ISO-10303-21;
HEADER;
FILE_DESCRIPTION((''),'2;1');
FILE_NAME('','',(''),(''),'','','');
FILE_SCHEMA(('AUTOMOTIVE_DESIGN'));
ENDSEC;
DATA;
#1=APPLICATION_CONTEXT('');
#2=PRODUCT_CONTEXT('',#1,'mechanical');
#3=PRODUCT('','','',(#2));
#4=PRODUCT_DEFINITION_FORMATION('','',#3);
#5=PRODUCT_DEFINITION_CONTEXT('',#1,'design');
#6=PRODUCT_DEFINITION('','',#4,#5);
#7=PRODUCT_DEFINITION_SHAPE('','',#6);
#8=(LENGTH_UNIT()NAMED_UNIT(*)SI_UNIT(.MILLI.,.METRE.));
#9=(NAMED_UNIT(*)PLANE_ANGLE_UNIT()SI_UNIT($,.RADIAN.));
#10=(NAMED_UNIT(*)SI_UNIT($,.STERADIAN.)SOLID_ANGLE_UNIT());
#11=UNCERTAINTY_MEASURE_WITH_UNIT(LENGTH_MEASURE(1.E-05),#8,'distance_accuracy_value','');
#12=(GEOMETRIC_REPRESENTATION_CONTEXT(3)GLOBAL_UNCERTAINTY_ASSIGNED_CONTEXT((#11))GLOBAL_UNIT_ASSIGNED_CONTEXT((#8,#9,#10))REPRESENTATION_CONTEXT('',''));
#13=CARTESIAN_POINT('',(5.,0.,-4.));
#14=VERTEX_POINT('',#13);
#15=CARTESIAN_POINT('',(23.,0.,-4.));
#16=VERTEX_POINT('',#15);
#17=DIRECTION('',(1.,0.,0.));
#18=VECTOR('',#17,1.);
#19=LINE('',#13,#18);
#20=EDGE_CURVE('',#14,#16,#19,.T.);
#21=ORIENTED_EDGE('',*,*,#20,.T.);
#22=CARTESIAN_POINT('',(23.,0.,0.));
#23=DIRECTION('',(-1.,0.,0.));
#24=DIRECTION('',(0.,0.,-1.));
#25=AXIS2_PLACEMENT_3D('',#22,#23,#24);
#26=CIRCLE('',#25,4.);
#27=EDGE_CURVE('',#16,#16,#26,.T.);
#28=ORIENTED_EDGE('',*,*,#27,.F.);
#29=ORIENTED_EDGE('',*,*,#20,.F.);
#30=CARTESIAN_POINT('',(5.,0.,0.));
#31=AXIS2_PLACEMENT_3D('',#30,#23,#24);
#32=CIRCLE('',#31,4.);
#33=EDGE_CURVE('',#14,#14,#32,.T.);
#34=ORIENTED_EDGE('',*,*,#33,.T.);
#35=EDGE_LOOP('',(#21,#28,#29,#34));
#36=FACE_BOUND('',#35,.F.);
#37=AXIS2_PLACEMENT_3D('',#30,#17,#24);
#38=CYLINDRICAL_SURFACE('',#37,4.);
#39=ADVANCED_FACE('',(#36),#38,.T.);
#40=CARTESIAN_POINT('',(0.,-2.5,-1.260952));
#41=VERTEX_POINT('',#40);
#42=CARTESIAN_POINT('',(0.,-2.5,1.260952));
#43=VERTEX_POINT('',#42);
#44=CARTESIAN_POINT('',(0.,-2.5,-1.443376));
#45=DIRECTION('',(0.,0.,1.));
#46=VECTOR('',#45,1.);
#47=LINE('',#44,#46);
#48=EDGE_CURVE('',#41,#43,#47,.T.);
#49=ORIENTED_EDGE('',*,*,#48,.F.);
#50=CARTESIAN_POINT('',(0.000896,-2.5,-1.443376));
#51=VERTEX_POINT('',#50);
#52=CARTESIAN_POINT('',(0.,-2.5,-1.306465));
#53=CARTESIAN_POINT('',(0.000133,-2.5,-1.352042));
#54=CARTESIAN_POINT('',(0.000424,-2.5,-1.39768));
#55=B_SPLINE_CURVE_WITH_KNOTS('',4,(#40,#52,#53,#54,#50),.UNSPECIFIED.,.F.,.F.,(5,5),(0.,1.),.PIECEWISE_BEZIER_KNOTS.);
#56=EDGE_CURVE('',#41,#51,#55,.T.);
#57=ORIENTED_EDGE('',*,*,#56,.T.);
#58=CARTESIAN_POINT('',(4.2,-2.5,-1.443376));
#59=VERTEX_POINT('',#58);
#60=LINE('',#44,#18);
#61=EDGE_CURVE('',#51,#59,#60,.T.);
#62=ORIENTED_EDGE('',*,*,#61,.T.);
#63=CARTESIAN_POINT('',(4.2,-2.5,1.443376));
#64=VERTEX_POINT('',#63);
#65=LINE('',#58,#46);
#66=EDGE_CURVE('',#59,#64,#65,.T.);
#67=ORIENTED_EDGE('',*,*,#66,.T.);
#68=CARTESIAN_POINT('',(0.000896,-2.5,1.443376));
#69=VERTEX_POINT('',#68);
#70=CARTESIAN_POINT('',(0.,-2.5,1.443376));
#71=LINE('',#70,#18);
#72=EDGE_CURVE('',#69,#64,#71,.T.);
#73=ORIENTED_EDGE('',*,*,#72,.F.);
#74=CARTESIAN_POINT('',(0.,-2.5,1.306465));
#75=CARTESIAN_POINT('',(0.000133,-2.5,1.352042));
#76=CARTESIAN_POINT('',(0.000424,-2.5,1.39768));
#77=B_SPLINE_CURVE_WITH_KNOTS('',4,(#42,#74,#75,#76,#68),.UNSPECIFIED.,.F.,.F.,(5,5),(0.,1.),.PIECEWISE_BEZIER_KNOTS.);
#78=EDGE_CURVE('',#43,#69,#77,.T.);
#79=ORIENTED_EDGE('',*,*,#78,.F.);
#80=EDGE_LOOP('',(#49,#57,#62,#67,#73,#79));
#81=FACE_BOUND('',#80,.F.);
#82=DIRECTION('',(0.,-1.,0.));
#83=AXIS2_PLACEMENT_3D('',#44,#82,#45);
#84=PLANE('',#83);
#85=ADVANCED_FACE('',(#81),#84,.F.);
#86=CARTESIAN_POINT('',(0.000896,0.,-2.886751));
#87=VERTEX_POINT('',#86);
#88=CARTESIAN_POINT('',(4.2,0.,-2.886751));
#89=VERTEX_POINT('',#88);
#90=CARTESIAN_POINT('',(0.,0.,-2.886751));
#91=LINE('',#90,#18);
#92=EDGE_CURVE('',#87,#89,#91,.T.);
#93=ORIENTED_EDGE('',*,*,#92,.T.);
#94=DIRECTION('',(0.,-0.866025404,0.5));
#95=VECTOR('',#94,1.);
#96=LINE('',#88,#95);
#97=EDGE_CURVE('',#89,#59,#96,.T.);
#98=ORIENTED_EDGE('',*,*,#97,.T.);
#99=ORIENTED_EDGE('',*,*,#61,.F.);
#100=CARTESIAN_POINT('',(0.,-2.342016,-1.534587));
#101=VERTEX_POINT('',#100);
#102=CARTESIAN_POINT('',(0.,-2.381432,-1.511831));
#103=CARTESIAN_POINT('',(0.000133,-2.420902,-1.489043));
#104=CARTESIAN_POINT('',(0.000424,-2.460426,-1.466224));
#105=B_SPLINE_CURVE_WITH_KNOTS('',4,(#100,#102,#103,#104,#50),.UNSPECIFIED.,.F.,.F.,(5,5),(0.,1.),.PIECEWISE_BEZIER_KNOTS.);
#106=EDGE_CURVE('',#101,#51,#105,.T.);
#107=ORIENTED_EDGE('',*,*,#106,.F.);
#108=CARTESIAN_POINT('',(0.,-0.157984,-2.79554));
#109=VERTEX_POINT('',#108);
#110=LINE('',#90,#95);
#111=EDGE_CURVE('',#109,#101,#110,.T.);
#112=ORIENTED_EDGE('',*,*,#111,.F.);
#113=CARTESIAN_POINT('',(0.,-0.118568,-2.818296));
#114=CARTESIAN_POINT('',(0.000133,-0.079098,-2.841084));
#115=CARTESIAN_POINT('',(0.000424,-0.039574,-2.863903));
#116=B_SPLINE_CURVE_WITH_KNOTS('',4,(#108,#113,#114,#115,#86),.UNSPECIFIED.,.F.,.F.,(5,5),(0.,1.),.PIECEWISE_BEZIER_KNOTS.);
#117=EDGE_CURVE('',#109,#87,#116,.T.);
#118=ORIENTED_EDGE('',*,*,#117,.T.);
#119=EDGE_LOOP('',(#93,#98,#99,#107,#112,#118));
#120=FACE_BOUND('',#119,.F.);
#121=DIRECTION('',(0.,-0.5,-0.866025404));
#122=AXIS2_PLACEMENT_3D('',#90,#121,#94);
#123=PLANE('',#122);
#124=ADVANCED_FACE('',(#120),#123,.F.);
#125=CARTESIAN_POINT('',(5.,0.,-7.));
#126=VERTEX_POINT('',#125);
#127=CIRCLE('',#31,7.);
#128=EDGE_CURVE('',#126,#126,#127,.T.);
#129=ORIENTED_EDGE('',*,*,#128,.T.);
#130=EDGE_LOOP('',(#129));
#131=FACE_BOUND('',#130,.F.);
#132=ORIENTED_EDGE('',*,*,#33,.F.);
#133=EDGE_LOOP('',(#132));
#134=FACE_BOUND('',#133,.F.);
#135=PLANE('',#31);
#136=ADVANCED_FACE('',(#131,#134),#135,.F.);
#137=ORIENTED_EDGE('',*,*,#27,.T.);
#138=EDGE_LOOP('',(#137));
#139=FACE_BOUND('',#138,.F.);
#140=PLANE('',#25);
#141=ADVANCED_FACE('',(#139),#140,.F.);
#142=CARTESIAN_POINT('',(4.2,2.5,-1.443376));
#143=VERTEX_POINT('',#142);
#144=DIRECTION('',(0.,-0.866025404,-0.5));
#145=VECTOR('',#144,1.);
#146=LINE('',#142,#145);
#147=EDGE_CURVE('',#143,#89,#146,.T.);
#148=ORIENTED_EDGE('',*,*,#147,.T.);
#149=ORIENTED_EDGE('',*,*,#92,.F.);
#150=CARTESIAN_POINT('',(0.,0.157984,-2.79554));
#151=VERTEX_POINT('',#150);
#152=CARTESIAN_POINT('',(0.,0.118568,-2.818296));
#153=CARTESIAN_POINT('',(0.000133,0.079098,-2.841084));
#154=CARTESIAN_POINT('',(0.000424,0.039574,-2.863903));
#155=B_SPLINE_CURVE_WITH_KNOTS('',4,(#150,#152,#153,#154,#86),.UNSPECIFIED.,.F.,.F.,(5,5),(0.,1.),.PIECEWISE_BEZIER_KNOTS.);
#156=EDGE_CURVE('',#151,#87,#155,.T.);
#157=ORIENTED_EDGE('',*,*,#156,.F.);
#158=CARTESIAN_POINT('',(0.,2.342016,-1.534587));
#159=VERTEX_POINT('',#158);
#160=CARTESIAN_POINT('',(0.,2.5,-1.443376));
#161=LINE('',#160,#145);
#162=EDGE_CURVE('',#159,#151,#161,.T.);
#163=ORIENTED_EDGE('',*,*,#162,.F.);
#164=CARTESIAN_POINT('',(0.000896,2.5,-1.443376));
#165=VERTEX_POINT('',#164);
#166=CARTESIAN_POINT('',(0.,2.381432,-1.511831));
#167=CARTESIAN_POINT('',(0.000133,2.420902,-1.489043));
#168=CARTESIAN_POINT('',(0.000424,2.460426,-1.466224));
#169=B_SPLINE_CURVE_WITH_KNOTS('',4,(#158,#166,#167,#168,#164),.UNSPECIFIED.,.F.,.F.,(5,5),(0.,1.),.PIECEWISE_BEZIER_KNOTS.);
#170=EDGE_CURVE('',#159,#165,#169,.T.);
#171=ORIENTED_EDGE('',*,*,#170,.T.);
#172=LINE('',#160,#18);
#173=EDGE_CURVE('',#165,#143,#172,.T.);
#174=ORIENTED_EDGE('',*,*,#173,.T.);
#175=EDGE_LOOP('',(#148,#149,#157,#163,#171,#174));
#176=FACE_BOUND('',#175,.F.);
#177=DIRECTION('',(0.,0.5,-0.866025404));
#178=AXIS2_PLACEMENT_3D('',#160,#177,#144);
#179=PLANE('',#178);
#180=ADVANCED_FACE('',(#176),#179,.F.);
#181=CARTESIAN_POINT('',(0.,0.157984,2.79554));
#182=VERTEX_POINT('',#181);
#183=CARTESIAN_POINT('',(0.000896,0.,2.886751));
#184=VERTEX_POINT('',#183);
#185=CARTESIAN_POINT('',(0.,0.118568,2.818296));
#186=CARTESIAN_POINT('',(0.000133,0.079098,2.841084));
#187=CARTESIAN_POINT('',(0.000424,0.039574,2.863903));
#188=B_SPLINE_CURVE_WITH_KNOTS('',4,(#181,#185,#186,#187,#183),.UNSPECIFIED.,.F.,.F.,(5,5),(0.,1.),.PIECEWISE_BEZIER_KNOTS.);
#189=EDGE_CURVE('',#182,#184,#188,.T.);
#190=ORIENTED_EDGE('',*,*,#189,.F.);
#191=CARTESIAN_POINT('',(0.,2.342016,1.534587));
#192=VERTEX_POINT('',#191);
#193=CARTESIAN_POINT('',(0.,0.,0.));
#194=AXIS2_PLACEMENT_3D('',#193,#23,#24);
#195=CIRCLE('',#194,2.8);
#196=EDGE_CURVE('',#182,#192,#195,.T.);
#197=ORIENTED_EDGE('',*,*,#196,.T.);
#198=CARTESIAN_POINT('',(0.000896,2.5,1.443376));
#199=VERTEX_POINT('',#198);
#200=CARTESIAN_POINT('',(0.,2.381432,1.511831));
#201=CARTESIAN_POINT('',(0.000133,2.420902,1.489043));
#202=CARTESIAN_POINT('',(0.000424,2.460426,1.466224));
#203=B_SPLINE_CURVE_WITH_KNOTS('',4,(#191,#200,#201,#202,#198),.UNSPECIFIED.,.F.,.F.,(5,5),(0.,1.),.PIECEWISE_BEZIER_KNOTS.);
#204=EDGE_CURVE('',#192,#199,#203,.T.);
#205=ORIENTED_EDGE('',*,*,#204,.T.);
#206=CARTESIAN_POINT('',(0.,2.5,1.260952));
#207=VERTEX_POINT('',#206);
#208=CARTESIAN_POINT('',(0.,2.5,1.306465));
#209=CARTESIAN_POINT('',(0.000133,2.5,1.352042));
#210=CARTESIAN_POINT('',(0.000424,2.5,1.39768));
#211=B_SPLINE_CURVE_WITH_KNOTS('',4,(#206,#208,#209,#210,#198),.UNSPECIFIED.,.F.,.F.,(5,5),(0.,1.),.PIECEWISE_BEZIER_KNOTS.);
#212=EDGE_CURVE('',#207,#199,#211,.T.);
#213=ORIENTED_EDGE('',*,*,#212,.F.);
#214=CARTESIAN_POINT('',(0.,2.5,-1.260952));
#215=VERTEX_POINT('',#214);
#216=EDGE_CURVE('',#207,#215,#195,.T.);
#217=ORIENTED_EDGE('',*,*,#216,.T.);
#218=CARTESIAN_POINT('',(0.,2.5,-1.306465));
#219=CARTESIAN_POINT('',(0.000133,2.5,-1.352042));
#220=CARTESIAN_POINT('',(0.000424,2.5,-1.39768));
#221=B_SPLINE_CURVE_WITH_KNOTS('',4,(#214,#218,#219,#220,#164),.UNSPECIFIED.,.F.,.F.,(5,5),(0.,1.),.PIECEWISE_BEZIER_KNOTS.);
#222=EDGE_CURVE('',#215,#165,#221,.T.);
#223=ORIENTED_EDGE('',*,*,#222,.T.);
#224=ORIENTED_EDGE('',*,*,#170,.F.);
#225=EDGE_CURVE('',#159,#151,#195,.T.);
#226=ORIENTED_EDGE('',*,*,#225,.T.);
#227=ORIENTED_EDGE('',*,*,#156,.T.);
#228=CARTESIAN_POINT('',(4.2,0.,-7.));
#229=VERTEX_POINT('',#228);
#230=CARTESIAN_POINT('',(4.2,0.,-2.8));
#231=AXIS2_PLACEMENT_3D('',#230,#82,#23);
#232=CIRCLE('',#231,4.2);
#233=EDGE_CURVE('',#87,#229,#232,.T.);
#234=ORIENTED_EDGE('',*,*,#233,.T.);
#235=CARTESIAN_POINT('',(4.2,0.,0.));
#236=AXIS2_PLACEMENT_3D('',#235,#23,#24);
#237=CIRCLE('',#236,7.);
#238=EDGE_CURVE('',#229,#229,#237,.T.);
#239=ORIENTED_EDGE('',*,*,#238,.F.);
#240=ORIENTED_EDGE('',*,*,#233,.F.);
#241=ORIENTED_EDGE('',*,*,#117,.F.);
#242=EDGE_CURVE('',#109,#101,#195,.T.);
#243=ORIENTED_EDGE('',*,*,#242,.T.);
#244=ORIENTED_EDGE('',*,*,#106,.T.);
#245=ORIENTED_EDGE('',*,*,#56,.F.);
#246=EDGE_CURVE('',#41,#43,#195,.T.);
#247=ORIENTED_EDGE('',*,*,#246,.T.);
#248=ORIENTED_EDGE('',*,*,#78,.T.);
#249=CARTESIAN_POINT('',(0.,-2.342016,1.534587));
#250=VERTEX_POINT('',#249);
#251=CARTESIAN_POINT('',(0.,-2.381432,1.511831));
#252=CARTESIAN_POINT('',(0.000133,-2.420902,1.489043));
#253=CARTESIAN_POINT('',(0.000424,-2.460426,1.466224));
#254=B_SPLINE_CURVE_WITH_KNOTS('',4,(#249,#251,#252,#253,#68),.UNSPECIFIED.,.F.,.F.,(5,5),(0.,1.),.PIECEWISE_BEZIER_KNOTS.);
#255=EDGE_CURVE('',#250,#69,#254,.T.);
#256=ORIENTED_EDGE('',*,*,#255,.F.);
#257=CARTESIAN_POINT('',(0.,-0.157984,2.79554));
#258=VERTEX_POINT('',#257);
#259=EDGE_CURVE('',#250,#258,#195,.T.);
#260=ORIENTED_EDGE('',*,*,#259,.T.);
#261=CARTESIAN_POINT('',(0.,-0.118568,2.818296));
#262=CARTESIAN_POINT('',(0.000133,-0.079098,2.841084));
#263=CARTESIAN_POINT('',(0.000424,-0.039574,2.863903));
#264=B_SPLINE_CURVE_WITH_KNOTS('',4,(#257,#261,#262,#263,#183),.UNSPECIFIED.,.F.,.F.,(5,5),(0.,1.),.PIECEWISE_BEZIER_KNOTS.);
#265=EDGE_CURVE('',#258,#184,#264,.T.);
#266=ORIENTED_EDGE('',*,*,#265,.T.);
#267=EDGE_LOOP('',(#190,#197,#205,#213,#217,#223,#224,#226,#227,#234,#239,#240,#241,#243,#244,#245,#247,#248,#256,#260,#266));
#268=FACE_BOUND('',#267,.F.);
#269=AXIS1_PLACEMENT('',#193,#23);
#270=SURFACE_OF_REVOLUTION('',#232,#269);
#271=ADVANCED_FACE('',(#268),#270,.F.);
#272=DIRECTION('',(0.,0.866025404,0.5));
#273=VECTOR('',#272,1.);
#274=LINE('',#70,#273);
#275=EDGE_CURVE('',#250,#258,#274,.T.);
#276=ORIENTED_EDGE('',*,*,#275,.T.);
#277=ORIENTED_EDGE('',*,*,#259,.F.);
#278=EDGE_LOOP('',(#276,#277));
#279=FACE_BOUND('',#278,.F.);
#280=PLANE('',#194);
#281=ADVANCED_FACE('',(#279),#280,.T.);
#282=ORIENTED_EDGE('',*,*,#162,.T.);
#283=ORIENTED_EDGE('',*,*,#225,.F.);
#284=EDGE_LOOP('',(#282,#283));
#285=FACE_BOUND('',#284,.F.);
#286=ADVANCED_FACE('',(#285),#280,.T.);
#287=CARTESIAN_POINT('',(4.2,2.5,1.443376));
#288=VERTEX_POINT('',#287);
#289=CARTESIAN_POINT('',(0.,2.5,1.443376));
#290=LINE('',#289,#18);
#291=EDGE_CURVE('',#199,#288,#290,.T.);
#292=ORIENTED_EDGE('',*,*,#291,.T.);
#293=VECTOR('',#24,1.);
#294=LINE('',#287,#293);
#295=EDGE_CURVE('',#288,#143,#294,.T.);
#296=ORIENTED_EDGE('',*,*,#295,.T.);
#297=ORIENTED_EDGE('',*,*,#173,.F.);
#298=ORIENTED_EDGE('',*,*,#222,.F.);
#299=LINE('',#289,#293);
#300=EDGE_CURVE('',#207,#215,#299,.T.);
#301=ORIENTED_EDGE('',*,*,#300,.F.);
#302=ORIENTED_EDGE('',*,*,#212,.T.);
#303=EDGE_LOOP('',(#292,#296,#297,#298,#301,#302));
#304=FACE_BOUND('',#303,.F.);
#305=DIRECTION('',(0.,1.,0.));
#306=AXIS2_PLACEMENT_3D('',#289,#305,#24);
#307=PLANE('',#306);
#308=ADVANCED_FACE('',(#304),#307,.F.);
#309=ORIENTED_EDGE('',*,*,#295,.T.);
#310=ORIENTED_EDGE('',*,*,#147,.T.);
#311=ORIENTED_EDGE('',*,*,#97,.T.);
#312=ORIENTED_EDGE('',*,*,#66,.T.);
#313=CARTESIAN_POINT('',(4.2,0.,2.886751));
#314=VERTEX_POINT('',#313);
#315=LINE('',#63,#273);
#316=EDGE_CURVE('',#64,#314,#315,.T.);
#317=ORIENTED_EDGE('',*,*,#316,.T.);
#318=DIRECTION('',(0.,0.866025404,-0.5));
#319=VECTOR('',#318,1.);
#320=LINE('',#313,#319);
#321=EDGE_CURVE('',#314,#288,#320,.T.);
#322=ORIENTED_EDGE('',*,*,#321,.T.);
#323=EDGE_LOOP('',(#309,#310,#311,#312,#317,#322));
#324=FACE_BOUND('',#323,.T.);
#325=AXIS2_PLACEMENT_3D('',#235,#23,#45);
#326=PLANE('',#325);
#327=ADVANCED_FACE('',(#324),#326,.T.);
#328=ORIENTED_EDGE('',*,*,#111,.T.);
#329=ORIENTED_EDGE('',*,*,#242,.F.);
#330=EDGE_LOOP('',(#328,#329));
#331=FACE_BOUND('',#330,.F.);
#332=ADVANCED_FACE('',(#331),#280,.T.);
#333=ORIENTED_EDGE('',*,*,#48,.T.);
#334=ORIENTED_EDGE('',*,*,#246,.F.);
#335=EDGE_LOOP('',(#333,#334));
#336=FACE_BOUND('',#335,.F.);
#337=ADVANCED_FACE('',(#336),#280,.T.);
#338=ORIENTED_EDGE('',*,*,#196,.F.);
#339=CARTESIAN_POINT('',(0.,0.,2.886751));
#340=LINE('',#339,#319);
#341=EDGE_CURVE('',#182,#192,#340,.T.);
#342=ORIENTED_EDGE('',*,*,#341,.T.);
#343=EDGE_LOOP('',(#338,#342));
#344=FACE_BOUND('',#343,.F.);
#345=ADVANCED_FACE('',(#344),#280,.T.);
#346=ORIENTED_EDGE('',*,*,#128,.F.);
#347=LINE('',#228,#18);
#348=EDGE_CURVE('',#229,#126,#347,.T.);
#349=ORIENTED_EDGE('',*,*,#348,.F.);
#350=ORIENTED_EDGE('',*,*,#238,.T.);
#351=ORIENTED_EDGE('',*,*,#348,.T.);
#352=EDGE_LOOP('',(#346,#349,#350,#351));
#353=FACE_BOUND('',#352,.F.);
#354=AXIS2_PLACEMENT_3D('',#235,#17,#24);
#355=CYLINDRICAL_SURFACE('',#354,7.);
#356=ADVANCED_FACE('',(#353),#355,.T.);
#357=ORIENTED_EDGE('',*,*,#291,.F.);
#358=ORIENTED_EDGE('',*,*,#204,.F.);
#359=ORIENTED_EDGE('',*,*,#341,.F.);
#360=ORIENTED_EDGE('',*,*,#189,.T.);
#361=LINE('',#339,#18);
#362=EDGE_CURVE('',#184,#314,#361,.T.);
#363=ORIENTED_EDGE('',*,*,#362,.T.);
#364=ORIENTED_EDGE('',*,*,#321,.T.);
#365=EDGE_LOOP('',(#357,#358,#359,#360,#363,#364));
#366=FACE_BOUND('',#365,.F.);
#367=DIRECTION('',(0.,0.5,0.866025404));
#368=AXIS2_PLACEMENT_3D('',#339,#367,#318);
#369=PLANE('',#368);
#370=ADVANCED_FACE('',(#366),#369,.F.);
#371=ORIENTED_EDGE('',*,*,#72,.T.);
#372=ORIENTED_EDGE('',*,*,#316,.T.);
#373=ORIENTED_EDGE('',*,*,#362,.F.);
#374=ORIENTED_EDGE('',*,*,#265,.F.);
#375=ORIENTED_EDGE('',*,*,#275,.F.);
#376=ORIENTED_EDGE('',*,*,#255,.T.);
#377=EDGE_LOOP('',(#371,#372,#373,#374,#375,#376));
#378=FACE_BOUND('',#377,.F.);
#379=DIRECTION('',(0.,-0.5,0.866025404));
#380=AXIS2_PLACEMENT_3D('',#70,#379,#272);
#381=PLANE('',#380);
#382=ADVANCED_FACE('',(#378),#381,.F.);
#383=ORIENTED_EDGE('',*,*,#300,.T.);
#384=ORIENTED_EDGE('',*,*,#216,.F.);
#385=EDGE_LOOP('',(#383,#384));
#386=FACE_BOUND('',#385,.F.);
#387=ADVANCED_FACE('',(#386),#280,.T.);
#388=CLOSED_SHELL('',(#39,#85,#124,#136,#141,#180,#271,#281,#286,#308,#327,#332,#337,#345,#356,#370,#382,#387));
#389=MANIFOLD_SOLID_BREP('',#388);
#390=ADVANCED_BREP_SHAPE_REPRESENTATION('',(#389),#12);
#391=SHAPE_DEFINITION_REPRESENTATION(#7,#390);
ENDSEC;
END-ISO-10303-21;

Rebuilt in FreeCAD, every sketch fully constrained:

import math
import FreeCAD as App
import Part
import Sketcher
Q = App.Units.Quantity


def add_polygon(sketch, points):
    """Adds a closed chain of lines whose ends are joined by coincident constraints."""
    first, n = sketch.GeometryCount, len(points)
    for a, b in zip(points, points[1:] + points[:1]):
        sketch.addGeometry(Part.LineSegment(App.Vector(*a, 0), App.Vector(*b, 0)), False)
    for i in range(n):
        sketch.addConstraint(Sketcher.Constraint("Coincident", first + i, 2, first + (i + 1) % n, 1))

doc = App.newDocument("Part")
body = doc.addObject("PartDesign::Body", "Body")

# Sketch on XY plane
sketch1 = doc.addObject("Sketcher::SketchObject", "Sketch")
body.addObject(sketch1)
sketch1.AttachmentSupport = (doc.XY_Plane, [""])
sketch1.MapMode = "FlatFace"
sketch1.addGeometry(Part.LineSegment(App.Vector(0, 2.8, 0), App.Vector(0, 0, 0)), False)
sketch1.addGeometry(Part.LineSegment(App.Vector(0, 0, 0), App.Vector(23, 0, 0)), False)
sketch1.addGeometry(Part.LineSegment(App.Vector(23, 0, 0), App.Vector(23, 4, 0)), False)
sketch1.addGeometry(Part.LineSegment(App.Vector(23, 4, 0), App.Vector(5, 4, 0)), False)
sketch1.addGeometry(Part.LineSegment(App.Vector(5, 4, 0), App.Vector(5, 7, 0)), False)
sketch1.addGeometry(Part.LineSegment(App.Vector(5, 7, 0), App.Vector(4.2, 7, 0)), False)
sketch1.addGeometry(Part.ArcOfCircle(Part.Circle(App.Vector(4.2, 2.8, 0), App.Vector(0, 0, 1), 4.2), math.radians(90), math.radians(180)), False)
sketch1.addConstraint(Sketcher.Constraint("Coincident", 0, 2, 1, 1))
sketch1.addConstraint(Sketcher.Constraint("Coincident", 1, 2, 2, 1))
sketch1.addConstraint(Sketcher.Constraint("Coincident", 2, 2, 3, 1))
sketch1.addConstraint(Sketcher.Constraint("Coincident", 3, 2, 4, 1))
sketch1.addConstraint(Sketcher.Constraint("Coincident", 4, 2, 5, 1))
sketch1.addConstraint(Sketcher.Constraint("Tangent", 5, 2, 6, 1))
sketch1.addConstraint(Sketcher.Constraint("Tangent", 6, 2, 0, 1))
sketch1.addConstraint(Sketcher.Constraint("Vertical", 0))
sketch1.addConstraint(Sketcher.Constraint("Horizontal", 1))
sketch1.addConstraint(Sketcher.Constraint("Vertical", 2))
sketch1.addConstraint(Sketcher.Constraint("Horizontal", 3))
sketch1.addConstraint(Sketcher.Constraint("Vertical", 4))
sketch1.addConstraint(Sketcher.Constraint("Horizontal", 5))
sketch1.addConstraint(Sketcher.Constraint("Coincident", 0, 2, -1, 1))
sketch1.addConstraint(Sketcher.Constraint("Radius", 6, Q("4.2 mm")))
sketch1.addConstraint(Sketcher.Constraint("DistanceX", 1, 1, 1, 2, Q("23 mm")))
sketch1.addConstraint(Sketcher.Constraint("DistanceX", 3, 2, 3, 1, Q("18 mm")))
sketch1.addConstraint(Sketcher.Constraint("DistanceY", 2, 1, 2, 2, Q("4 mm")))
sketch1.addConstraint(Sketcher.Constraint("DistanceY", 4, 1, 4, 2, Q("3 mm")))
revolution = doc.addObject("PartDesign::Revolution", "Revolution")
body.addObject(revolution)
revolution.Profile = sketch1
revolution.ReferenceAxis = (sketch1, ["H_Axis"])
revolution.Angle = 360

# Sketch on YZ plane
sketch2 = doc.addObject("Sketcher::SketchObject", "Sketch001")
body.addObject(sketch2)
sketch2.AttachmentSupport = (doc.YZ_Plane, [""])
sketch2.MapMode = "FlatFace"
add_polygon(sketch2, [(0, 2.9), (2.5, 1.4), (2.5, -1.4), (0, -2.9), (-2.5, -1.4), (-2.5, 1.4)])  # lines 0-5
sketch2.addConstraint(Sketcher.Constraint("Vertical", 1))
sketch2.addConstraint(Sketcher.Constraint("Vertical", 4))
sketch2.addConstraint(Sketcher.Constraint("Symmetric", 0, 2, 3, 2, -1, 1))
sketch2.addConstraint(Sketcher.Constraint("Symmetric", 2, 2, 5, 2, -1, 1))
sketch2.addConstraint(Sketcher.Constraint("PointOnObject", 2, 2, -2))
sketch2.addConstraint(Sketcher.Constraint("Parallel", 2, 5))
sketch2.addConstraint(Sketcher.Constraint("Horizontal", 1, 2, 3, 2))
sketch2.addConstraint(Sketcher.Constraint("Angle", 0, Q("-30 deg")))
sketch2.addConstraint(Sketcher.Constraint("DistanceX", 3, 2, 1, 2, Q("5 mm")))
sketch2.addConstraint(Sketcher.Constraint("DistanceY", 1, 2, 1, 1, Q("2.886751 mm")))
pocket1 = doc.addObject("PartDesign::Pocket", "Pocket")
body.addObject(pocket1)
pocket1.Profile = sketch2
pocket1.Length = 4.2
pocket1.Reversed = True

doc.recompute()
